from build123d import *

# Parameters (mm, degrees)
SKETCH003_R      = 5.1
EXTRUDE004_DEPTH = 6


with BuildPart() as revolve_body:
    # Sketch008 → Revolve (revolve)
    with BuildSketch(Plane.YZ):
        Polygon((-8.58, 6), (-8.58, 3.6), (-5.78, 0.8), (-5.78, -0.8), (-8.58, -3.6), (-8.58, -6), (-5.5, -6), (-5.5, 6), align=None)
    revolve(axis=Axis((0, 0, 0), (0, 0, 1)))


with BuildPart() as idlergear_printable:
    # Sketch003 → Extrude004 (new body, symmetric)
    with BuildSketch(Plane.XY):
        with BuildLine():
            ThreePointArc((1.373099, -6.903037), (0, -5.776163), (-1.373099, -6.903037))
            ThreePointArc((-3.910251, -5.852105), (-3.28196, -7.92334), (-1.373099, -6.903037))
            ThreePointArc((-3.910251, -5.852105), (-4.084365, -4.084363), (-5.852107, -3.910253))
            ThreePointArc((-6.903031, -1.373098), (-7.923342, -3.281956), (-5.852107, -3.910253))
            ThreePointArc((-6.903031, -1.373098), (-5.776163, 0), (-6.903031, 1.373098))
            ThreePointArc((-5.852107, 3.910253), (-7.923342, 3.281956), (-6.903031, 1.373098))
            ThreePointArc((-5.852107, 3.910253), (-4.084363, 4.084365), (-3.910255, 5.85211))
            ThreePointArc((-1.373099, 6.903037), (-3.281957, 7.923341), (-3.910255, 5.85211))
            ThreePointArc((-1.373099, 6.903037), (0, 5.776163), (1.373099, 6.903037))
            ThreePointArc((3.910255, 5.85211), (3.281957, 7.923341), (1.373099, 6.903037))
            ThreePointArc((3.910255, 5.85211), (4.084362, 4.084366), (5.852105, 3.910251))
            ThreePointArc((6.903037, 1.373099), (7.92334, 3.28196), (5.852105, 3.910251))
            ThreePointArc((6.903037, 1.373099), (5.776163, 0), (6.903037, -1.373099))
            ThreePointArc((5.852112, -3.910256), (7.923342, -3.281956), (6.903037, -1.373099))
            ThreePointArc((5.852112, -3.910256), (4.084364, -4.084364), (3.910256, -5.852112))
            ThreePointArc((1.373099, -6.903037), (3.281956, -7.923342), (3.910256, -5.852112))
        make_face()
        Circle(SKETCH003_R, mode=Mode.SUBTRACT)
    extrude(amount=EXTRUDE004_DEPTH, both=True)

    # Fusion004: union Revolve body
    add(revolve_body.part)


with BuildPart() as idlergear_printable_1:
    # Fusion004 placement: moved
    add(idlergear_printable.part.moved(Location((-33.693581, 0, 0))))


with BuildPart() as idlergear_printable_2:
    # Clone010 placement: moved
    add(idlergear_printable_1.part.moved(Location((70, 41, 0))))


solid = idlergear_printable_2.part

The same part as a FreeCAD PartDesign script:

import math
import FreeCAD as App
import Part
import Sketcher
Q = App.Units.Quantity

doc = App.newDocument("Part")
body = doc.addObject("PartDesign::Body", "Body")

# Sketch on YZ plane
sketch1 = body.newObject("Sketcher::SketchObject", "Sketch")
sketch1.AttachmentSupport = (doc.getObject("YZ_Plane"), [""])
sketch1.MapMode = "FlatFace"
sketch1.addGeometry([
    Part.LineSegment(App.Vector(-8.58, 6, 0), App.Vector(-8.58, 3.6, 0)),  # 0
    Part.LineSegment(App.Vector(-8.58, 3.6, 0), App.Vector(-5.78, 0.8, 0)),  # 1
    Part.LineSegment(App.Vector(-5.78, 0.8, 0), App.Vector(-5.78, -0.8, 0)),  # 2
    Part.LineSegment(App.Vector(-5.78, -0.8, 0), App.Vector(-8.58, -3.6, 0)),  # 3
    Part.LineSegment(App.Vector(-8.58, -3.6, 0), App.Vector(-8.58, -6, 0)),  # 4
    Part.LineSegment(App.Vector(-8.58, -6, 0), App.Vector(-5.5, -6, 0)),  # 5
    Part.LineSegment(App.Vector(-5.5, -6, 0), App.Vector(-5.5, 6, 0)),  # 6
    Part.LineSegment(App.Vector(-5.5, 6, 0), App.Vector(-8.58, 6, 0)),  # 7
], False)
sketch1.addConstraint([
    Sketcher.Constraint("Coincident", 0, 2, 1, 1),
    Sketcher.Constraint("Coincident", 1, 2, 2, 1),
    Sketcher.Constraint("Coincident", 2, 2, 3, 1),
    Sketcher.Constraint("Coincident", 3, 2, 4, 1),
    Sketcher.Constraint("Coincident", 4, 2, 5, 1),
    Sketcher.Constraint("Coincident", 5, 2, 6, 1),
    Sketcher.Constraint("Coincident", 6, 2, 7, 1),
    Sketcher.Constraint("Coincident", 7, 2, 0, 1),
    Sketcher.Constraint("Vertical", 0),
    Sketcher.Constraint("Vertical", 2),
    Sketcher.Constraint("Vertical", 4),
    Sketcher.Constraint("Horizontal", 5),
    Sketcher.Constraint("Vertical", 6),
    Sketcher.Constraint("Horizontal", 7),
    Sketcher.Constraint("Symmetric", 0, 2, 3, 2, -1),
    Sketcher.Constraint("Perpendicular", 1, 3),
    Sketcher.Constraint("Equal", 0, 4),
    Sketcher.Constraint("Equal", 1, 3),
    Sketcher.Constraint("DistanceY", 6, 1, 6, 2, Q("12 mm")),
    Sketcher.Constraint("DistanceY", 0, 2, 0, 1, Q("2.4 mm")),
    Sketcher.Constraint("DistanceY", 2, 2, 2, 1, Q("1.6 mm")),
    Sketcher.Constraint("DistanceX", 5, 1, 5, 2, Q("3.08 mm")),
    Sketcher.Constraint("DistanceX", 5, 2, -1, 1, Q("5.5 mm")),
])
revolution = body.newObject("PartDesign::Revolution", "Revolution")
revolution.Profile = sketch1
revolution.ReferenceAxis = (sketch1, ["V_Axis"])
revolution.Angle = 360
body2 = doc.addObject("PartDesign::Body", "Body001")

# Sketch on XY plane
sketch2 = body2.newObject("Sketcher::SketchObject", "Sketch001")
sketch2.AttachmentSupport = (doc.getObject("XY_Plane001"), [""])
sketch2.MapMode = "FlatFace"
sketch2.addGeometry([
    Part.ArcOfCircle(Part.Circle(App.Vector(0, -7.176162, 0), App.Vector(0, 0, 1), 1.399999), math.radians(11.249961), math.radians(168.750039)),  # 0
    Part.ArcOfCircle(Part.Circle(App.Vector(2.746199, -6.629911, 0), App.Vector(0, 0, 1), 1.4), math.radians(-168.750008), math.radians(33.750015)),  # 1
    Part.ArcOfCircle(Part.Circle(App.Vector(5.074314, -5.074314, 0), App.Vector(0, 0, 1), 1.4), math.radians(56.250001), math.radians(213.749999)),  # 2
    Part.ArcOfCircle(Part.Circle(App.Vector(6.629911, -2.746199, 0), App.Vector(0, 0, 1), 1.4), math.radians(-123.750015), math.radians(78.750008)),  # 3
    Part.ArcOfCircle(Part.Circle(App.Vector(7.176162, 0, 0), App.Vector(0, 0, 1), 1.399999), math.radians(101.249961), math.radians(258.750039)),  # 4
    Part.ArcOfCircle(Part.Circle(App.Vector(6.629911, 2.746198, 0), App.Vector(0, 0, 1), 1.4), math.radians(-78.750003), math.radians(123.750359)),  # 5
    Part.ArcOfCircle(Part.Circle(App.Vector(5.074314, 5.074313, 0), App.Vector(0, 0, 1), 1.4), math.radians(146.250089), math.radians(303.749645)),  # 6
    Part.ArcOfCircle(Part.Circle(App.Vector(2.746199, 6.62991, 0), App.Vector(0, 0, 1), 1.4), math.radians(-33.750084), math.radians(168.749984)),  # 7
    Part.ArcOfCircle(Part.Circle(App.Vector(0, 7.176162, 0), App.Vector(0, 0, 1), 1.399999), math.radians(-168.750039), math.radians(-11.249961)),  # 8
    Part.ArcOfCircle(Part.Circle(App.Vector(-2.746199, 6.62991, 0), App.Vector(0, 0, 1), 1.4), math.radians(11.250016), math.radians(213.750084)),  # 9
    Part.ArcOfCircle(Part.Circle(App.Vector(-5.074313, 5.074313, 0), App.Vector(0, 0, 1), 1.4), math.radians(-123.749775), math.radians(33.749922)),  # 10
    Part.ArcOfCircle(Part.Circle(App.Vector(-6.629911, 2.746199, 0), App.Vector(0, 0, 1), 1.4), math.radians(56.249747), math.radians(258.750254)),  # 11
    Part.ArcOfCircle(Part.Circle(App.Vector(-7.176163, 0, 0), App.Vector(0, 0, 1), 1.4), math.radians(-78.74978), math.radians(78.74978)),  # 12
    Part.ArcOfCircle(Part.Circle(App.Vector(-6.629911, -2.746199, 0), App.Vector(0, 0, 1), 1.4), math.radians(101.249746), math.radians(303.750253)),  # 13
    Part.ArcOfCircle(Part.Circle(App.Vector(-5.074313, -5.074314, 0), App.Vector(0, 0, 1), 1.4), math.radians(-33.749645), math.radians(123.749763)),  # 14
    Part.ArcOfCircle(Part.Circle(App.Vector(-2.746198, -6.629911, 0), App.Vector(0, 0, 1), 1.4), math.radians(146.249641), math.radians(348.750003)),  # 15
    Part.Circle(App.Vector(0, 0, 0), App.Vector(0, 0, 1), 5.1),  # 16
], False)
sketch2.addConstraint([
    Sketcher.Constraint("Tangent", 0, 1, 1, 1),
    Sketcher.Constraint("Tangent", 1, 2, 2, 2),
    Sketcher.Constraint("Tangent", 2, 1, 3, 1),
    Sketcher.Constraint("Tangent", 3, 2, 4, 2),
    Sketcher.Constraint("Tangent", 4, 1, 5, 1),
    Sketcher.Constraint("Coincident", 5, 2, 6, 2),
    Sketcher.Constraint("Coincident", 6, 1, 7, 1),
    Sketcher.Constraint("Tangent", 7, 2, 8, 2),
    Sketcher.Constraint("Tangent", 8, 1, 9, 1),
    Sketcher.Constraint("Coincident", 9, 2, 10, 2),
    Sketcher.Constraint("Coincident", 10, 1, 11, 1),
    Sketcher.Constraint("Coincident", 11, 2, 12, 2),
    Sketcher.Constraint("Coincident", 12, 1, 13, 1),
    Sketcher.Constraint("Coincident", 13, 2, 14, 2),
    Sketcher.Constraint("Coincident", 14, 1, 15, 1),
    Sketcher.Constraint("Tangent", 15, 2, 0, 2),
    Sketcher.Constraint("Coincident", 16, 3, -1, 1),
    Sketcher.Constraint("Equal", 0, 1),
    Sketcher.Constraint("Equal", 1, 2),
    Sketcher.Constraint("Equal", 2, 3),
    Sketcher.Constraint("Equal", 3, 4),
    Sketcher.Constraint("Equal", 4, 5),
    Sketcher.Constraint("Equal", 5, 6),
    Sketcher.Constraint("Equal", 6, 7),
    Sketcher.Constraint("Equal", 7, 8),
    Sketcher.Constraint("Equal", 8, 9),
    Sketcher.Constraint("Equal", 9, 10),
    Sketcher.Constraint("Equal", 10, 11),
    Sketcher.Constraint("Equal", 11, 12),
    Sketcher.Constraint("Equal", 12, 13),
    Sketcher.Constraint("Equal", 13, 14),
    Sketcher.Constraint("Equal", 14, 15),
    Sketcher.Constraint("Symmetric", 0, 3, 8, 3, -1, 1),
    Sketcher.Constraint("Symmetric", 2, 3, 10, 3, -1, 1),
    Sketcher.Constraint("Symmetric", 4, 3, 12, 3, -1, 1),
    Sketcher.Constraint("Symmetric", 6, 3, 14, 3, -1, 1),
    Sketcher.Constraint("Symmetric", 7, 3, 9, 3, -2),
    Sketcher.Constraint("Symmetric", 5, 3, 11, 3, -2),
    Sketcher.Constraint("Horizontal", 6, 1, 9, 2),
    Sketcher.Constraint("Horizontal", 4, 1, 11, 2),
    Sketcher.Constraint("Horizontal", 3, 2, 12, 1),
    Sketcher.Constraint("Vertical", 1, 2, 6, 1),
    Sketcher.Constraint("Vertical", 10, 1, 13, 2),
    Sketcher.Constraint("Diameter", 16, Q("10.2 mm")),
    Sketcher.Constraint("Radius", 0, Q("1.399999 mm")),
    Sketcher.Constraint("DistanceX", -1, 1, 1, 3, Q("2.746199 mm")),
    Sketcher.Constraint("DistanceY", 3, 3, -1, 1, Q("2.746199 mm")),
    Sketcher.Constraint("DistanceY", 1, 2, 2, 3, Q("0.777798 mm")),
    Sketcher.Constraint("DistanceX", 2, 3, 2, 1, Q("0.777798 mm")),
    Sketcher.Constraint("DistanceY", -1, 1, 5, 2, Q("3.910251 mm")),
    Sketcher.Constraint("DistanceX", 14, 1, -1, 1, Q("3.910251 mm")),
    Sketcher.Constraint("DistanceY", 10, 1, 10, 3, Q("1.16406 mm")),
])
pad1 = body2.newObject("PartDesign::Pad", "Pad")
pad1.Profile = sketch2
pad1.Length = 12
pad1.Midplane = True
doc.recompute()

boolean = body2.newObject("PartDesign::Boolean", "Boolean")
boolean.Type = "Fuse"
boolean.addObjects([body])
body3 = doc.addObject("PartDesign::Body", "Body002")
doc.recompute()

body2.Placement = App.Placement(App.Vector(-33.693581, 0, 0), App.Rotation(App.Vector(0, 0, 1), 0))
boolean2 = body3.newObject("PartDesign::Boolean", "Boolean001")
boolean2.Type = "Fuse"
boolean2.addObjects([body2])
body4 = doc.addObject("PartDesign::Body", "Body003")
doc.recompute()

body3.Placement = App.Placement(App.Vector(70, 41, 0), App.Rotation(App.Vector(0, 0, 1), 0))
boolean3 = body4.newObject("PartDesign::Boolean", "Boolean002")
boolean3.Type = "Fuse"
boolean3.addObjects([body3])

doc.recompute()
